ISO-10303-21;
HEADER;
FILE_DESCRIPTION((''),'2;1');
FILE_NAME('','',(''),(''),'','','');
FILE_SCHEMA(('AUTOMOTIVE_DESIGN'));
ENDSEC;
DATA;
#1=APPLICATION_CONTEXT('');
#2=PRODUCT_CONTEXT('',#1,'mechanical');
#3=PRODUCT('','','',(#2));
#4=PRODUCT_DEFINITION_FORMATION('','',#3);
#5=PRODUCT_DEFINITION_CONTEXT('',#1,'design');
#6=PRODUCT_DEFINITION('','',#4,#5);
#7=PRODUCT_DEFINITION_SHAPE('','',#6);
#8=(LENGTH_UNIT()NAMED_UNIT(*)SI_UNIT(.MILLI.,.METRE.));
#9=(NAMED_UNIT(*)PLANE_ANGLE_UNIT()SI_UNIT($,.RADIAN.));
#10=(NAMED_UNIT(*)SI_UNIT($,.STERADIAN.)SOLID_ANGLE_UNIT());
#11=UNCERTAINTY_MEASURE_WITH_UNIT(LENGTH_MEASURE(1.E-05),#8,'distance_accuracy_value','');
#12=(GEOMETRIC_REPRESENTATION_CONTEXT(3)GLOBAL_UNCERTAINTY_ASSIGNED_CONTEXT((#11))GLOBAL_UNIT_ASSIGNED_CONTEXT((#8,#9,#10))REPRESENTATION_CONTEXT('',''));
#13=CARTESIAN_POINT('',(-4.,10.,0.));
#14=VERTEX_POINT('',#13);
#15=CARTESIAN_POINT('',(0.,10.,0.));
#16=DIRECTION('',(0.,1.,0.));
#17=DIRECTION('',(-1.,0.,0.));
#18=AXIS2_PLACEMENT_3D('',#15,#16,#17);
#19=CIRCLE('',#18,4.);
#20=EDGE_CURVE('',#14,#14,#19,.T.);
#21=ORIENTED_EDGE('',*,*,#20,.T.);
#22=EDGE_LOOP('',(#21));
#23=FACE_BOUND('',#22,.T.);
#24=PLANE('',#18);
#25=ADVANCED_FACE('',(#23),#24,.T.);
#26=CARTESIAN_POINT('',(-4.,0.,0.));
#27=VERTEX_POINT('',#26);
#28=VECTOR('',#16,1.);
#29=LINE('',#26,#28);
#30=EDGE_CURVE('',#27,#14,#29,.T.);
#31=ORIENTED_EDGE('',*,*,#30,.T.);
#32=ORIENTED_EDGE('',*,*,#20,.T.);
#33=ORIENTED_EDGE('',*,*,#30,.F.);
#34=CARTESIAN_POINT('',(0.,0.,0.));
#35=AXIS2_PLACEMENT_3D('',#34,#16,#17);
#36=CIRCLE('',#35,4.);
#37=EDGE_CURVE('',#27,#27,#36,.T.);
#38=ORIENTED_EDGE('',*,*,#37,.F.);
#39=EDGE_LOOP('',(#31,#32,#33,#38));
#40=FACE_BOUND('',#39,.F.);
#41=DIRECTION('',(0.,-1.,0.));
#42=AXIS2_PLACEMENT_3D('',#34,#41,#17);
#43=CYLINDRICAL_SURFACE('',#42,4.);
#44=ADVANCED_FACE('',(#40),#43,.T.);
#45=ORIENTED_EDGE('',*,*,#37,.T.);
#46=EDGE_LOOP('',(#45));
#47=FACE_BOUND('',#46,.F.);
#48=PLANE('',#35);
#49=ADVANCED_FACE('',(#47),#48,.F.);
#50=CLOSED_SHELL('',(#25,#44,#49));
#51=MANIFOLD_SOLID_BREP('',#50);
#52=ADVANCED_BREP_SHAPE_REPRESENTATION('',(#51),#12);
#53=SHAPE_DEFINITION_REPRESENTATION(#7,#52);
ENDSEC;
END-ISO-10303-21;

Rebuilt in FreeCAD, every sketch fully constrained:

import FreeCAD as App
import Part
import Sketcher

doc = App.newDocument("Part")
body = doc.addObject("PartDesign::Body", "Body")

# Sketch on XZ plane
sketch1 = doc.addObject("Sketcher::SketchObject", "Sketch")
body.addObject(sketch1)
sketch1.AttachmentSupport = (doc.XZ_Plane, [""])
sketch1.MapMode = "FlatFace"
sketch1.addGeometry(Part.Circle(App.Vector(0, 0, 0), App.Vector(0, 0, 1), 4), False)
sketch1.addConstraint(Sketcher.Constraint("Coincident", 0, 3, -1, 1))
sketch1.addConstraint(Sketcher.Constraint("Diameter", 0, 8.0))
pad1 = doc.addObject("PartDesign::Pad", "Pad")
body.addObject(pad1)
pad1.Profile = sketch1
pad1.Length = 10
pad1.Reversed = True

doc.recompute()
